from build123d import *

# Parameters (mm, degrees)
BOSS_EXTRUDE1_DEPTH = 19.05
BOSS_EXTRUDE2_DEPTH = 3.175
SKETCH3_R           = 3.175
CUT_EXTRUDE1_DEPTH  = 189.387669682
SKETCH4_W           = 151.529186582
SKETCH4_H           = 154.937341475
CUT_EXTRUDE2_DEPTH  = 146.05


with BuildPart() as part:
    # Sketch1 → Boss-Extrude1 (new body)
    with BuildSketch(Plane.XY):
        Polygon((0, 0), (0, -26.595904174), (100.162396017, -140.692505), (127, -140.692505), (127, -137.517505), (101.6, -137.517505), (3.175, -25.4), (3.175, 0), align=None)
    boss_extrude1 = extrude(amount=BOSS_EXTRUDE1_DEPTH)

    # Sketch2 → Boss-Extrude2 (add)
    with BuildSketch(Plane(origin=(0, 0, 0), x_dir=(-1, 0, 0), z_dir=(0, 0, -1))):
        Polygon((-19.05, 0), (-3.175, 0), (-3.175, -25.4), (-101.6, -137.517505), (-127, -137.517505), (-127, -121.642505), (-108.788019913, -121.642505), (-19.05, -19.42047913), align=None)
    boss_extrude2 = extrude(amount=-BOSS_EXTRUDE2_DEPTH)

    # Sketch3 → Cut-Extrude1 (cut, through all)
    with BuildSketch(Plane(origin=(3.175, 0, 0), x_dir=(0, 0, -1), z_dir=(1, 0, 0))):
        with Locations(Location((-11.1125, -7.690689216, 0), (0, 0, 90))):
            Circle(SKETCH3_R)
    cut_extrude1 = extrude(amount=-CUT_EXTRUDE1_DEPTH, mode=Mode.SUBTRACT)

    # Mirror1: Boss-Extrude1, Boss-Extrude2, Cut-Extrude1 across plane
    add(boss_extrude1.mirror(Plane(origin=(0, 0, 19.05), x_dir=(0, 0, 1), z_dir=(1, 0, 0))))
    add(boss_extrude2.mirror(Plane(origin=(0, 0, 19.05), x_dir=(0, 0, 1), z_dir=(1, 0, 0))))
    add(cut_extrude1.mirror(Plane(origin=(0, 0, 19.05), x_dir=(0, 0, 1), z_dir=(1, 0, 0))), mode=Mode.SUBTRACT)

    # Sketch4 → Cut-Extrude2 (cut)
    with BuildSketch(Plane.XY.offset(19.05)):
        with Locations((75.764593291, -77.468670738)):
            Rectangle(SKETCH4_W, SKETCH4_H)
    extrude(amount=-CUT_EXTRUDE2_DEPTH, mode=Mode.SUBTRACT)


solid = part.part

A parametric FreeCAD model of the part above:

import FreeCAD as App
import Part
import Sketcher

V = App.Vector
Q = App.Units.Quantity


def add_polygon(sketch, points):
    """Adds a closed chain of lines whose ends are joined by coincident constraints."""
    first, n = sketch.GeometryCount, len(points)
    for a, b in zip(points, points[1:] + points[:1]):
        sketch.addGeometry(Part.LineSegment(App.Vector(*a, 0), App.Vector(*b, 0)), False)
    for i in range(n):
        sketch.addConstraint(Sketcher.Constraint("Coincident", first + i, 2, first + (i + 1) % n, 1))

doc = App.newDocument("Part")
params = doc.addObject("Spreadsheet::Sheet", "Params")
for row, (alias, value) in enumerate([
    ("sketch1_width", "1 in"),
    ("sketch1_width2", "0.125 in"),
    ("pad1_length", "0.75 in"),
    ("sketch2_width", "1 in"),
    ("sketch2_width2", "0.625 in"),
    ("pad2_length", "0.125 in"),
    ("sketch3_diameter", "0.25 in"),
    ("pocket2_length", "5.75 in"),
], start=1):
    params.set(f"A{row}", alias)
    params.set(f"B{row}", "=" + value)
    params.setAlias(f"B{row}", alias)

body = doc.addObject("PartDesign::Body", "Body")

sketch1 = doc.addObject("Sketcher::SketchObject", "Sketch")
body.addObject(sketch1)
sketch1.AttachmentSupport = (doc.XY_Plane, [""])
sketch1.MapMode = "FlatFace"
add_polygon(sketch1, [(0, 0), (0, -26.6), (100.2, -140.7), (127, -140.7), (127, -137.5), (101.6, -137.5), (3.2, -25.4), (3.2, 0)])
sketch1.addConstraint([
    Sketcher.Constraint("Vertical", 0),
    Sketcher.Constraint("Horizontal", 2),
    Sketcher.Constraint("Vertical", 3),
    Sketcher.Constraint("Horizontal", 4),
    Sketcher.Constraint("Vertical", 6),
    Sketcher.Constraint("Horizontal", 7),
    Sketcher.Constraint("Coincident", 7, 2, -1, 1),
    Sketcher.Constraint("Parallel", 1, 5),
    Sketcher.Constraint("Equal", 7, 3),
    Sketcher.Constraint("Equal", 4, 6),
    Sketcher.Constraint("DistanceX", 4, 2, 4, 1, Q("1 in")),
    Sketcher.Constraint("DistanceX", -1, 1, 2, 2, Q("5 in")),
    Sketcher.Constraint("DistanceX", 7, 2, 7, 1, Q("0.125 in")),
    Sketcher.Constraint("DistanceY", 1, 2, 0, 2, Q("114.096601 mm")),
    Sketcher.Constraint("DistanceX", 2, 1, 2, 2, Q("26.837604 mm")),
])
sketch1.setExpression("Constraints[18]", "Params.sketch1_width")
sketch1.setExpression("Constraints[20]", "Params.sketch1_width2")
pad1 = doc.addObject("PartDesign::Pad", "Pad")
body.addObject(pad1)
pad1.Profile = sketch1
pad1.setExpression("Length", "Params.pad1_length")

sketch2 = doc.addObject("Sketcher::SketchObject", "Sketch001")
body.addObject(sketch2)
sketch2.AttachmentSupport = (doc.XY_Plane, [""])
sketch2.MapMode = "FlatFace"
add_polygon(sketch2, [(3, 0), (19, 0), (19, -19), (109, -122), (127, -122), (127, -138), (102, -138), (3, -25)])
sketch2.addConstraint([
    Sketcher.Constraint("Horizontal", 0),
    Sketcher.Constraint("Vertical", 1),
    Sketcher.Constraint("Horizontal", 3),
    Sketcher.Constraint("Vertical", 4),
    Sketcher.Constraint("Horizontal", 5),
    Sketcher.Constraint("Vertical", 7),
    Sketcher.Constraint("PointOnObject", 0, 2, -1),
    Sketcher.Constraint("Parallel", 2, 6),
    Sketcher.Constraint("Equal", 0, 4),
    Sketcher.Constraint("Equal", 5, 7),
    Sketcher.Constraint("DistanceX", 5, 2, 5, 1, Q("1 in")),
    Sketcher.Constraint("DistanceX", -1, 1, 3, 2, Q("5 in")),
    Sketcher.Constraint("DistanceX", 0, 1, 0, 2, Q("0.625 in")),
    Sketcher.Constraint("DistanceX", -1, 1, 0, 2, Q("0.75 in")),
    Sketcher.Constraint("DistanceX", 3, 1, 3, 2, Q("18.21198 mm")),
    Sketcher.Constraint("DistanceY", 1, 2, 1, 1, Q("19.420479 mm")),
])
sketch2.setExpression("Constraints[18]", "Params.sketch2_width")
sketch2.setExpression("Constraints[20]", "Params.sketch2_width2")
pad2 = doc.addObject("PartDesign::Pad", "Pad001")
body.addObject(pad2)
pad2.Profile = sketch2
pad2.setExpression("Length", "Params.pad2_length")

sketch3 = doc.addObject("Sketcher::SketchObject", "Sketch002")
body.addObject(sketch3)
sketch3.AttachmentSupport = (doc.YZ_Plane, [""])
sketch3.MapMode = "FlatFace"
sketch3.AttachmentOffset = App.Placement(V(0, 0, 0.125 * 25.4), App.Rotation())
sketch3.addGeometry(Part.Circle(V(-7.7, 11.1, 0), V(0, 0, 1), 3.2), False)
sketch3.addConstraint([
    Sketcher.Constraint("Diameter", 0, Q("0.25 in")),
    Sketcher.Constraint("DistanceY", -1, 1, 0, 3, Q("0.4375 in")),
    Sketcher.Constraint("DistanceX", 0, 3, -1, 1, Q("7.690689 mm")),
])
sketch3.setExpression("Constraints[0]", "Params.sketch3_diameter")
pocket1 = doc.addObject("PartDesign::Pocket", "Pocket")
body.addObject(pocket1)
pocket1.Profile = sketch3
pocket1.Type = "ThroughAll"
doc.recompute()

mirrored = doc.addObject("PartDesign::Mirrored", "Mirrored")
body.addObject(mirrored)
mirrored.Originals = [pad1, pad2, pocket1]
mirrored.MirrorPlane = (doc.YZ_Plane, [""])
body.Tip = mirrored

sketch4 = doc.addObject("Sketcher::SketchObject", "Sketch003")
body.addObject(sketch4)
sketch4.AttachmentSupport = (doc.XY_Plane, [""])
sketch4.MapMode = "FlatFace"
sketch4.AttachmentOffset = App.Placement(V(0, 0, 0.75 * 25.4), App.Rotation())
add_polygon(sketch4, [(0, 0), (0, -155), (152, -155), (152, 0)])
sketch4.addConstraint([
    Sketcher.Constraint("Vertical", 0),
    Sketcher.Constraint("Horizontal", 1),
    Sketcher.Constraint("Vertical", 2),
    Sketcher.Constraint("Horizontal", 3),
    Sketcher.Constraint("Coincident", 3, 2, -1, 1),
    Sketcher.Constraint("DistanceY", 0, 2, 0, 1, Q("154.937341 mm")),
    Sketcher.Constraint("DistanceX", 1, 1, 1, 2, Q("151.529187 mm")),
])
pocket2 = doc.addObject("PartDesign::Pocket", "Pocket001")
body.addObject(pocket2)
pocket2.Profile = sketch4
pocket2.setExpression("Length", "Params.pocket2_length")

doc.recompute()
